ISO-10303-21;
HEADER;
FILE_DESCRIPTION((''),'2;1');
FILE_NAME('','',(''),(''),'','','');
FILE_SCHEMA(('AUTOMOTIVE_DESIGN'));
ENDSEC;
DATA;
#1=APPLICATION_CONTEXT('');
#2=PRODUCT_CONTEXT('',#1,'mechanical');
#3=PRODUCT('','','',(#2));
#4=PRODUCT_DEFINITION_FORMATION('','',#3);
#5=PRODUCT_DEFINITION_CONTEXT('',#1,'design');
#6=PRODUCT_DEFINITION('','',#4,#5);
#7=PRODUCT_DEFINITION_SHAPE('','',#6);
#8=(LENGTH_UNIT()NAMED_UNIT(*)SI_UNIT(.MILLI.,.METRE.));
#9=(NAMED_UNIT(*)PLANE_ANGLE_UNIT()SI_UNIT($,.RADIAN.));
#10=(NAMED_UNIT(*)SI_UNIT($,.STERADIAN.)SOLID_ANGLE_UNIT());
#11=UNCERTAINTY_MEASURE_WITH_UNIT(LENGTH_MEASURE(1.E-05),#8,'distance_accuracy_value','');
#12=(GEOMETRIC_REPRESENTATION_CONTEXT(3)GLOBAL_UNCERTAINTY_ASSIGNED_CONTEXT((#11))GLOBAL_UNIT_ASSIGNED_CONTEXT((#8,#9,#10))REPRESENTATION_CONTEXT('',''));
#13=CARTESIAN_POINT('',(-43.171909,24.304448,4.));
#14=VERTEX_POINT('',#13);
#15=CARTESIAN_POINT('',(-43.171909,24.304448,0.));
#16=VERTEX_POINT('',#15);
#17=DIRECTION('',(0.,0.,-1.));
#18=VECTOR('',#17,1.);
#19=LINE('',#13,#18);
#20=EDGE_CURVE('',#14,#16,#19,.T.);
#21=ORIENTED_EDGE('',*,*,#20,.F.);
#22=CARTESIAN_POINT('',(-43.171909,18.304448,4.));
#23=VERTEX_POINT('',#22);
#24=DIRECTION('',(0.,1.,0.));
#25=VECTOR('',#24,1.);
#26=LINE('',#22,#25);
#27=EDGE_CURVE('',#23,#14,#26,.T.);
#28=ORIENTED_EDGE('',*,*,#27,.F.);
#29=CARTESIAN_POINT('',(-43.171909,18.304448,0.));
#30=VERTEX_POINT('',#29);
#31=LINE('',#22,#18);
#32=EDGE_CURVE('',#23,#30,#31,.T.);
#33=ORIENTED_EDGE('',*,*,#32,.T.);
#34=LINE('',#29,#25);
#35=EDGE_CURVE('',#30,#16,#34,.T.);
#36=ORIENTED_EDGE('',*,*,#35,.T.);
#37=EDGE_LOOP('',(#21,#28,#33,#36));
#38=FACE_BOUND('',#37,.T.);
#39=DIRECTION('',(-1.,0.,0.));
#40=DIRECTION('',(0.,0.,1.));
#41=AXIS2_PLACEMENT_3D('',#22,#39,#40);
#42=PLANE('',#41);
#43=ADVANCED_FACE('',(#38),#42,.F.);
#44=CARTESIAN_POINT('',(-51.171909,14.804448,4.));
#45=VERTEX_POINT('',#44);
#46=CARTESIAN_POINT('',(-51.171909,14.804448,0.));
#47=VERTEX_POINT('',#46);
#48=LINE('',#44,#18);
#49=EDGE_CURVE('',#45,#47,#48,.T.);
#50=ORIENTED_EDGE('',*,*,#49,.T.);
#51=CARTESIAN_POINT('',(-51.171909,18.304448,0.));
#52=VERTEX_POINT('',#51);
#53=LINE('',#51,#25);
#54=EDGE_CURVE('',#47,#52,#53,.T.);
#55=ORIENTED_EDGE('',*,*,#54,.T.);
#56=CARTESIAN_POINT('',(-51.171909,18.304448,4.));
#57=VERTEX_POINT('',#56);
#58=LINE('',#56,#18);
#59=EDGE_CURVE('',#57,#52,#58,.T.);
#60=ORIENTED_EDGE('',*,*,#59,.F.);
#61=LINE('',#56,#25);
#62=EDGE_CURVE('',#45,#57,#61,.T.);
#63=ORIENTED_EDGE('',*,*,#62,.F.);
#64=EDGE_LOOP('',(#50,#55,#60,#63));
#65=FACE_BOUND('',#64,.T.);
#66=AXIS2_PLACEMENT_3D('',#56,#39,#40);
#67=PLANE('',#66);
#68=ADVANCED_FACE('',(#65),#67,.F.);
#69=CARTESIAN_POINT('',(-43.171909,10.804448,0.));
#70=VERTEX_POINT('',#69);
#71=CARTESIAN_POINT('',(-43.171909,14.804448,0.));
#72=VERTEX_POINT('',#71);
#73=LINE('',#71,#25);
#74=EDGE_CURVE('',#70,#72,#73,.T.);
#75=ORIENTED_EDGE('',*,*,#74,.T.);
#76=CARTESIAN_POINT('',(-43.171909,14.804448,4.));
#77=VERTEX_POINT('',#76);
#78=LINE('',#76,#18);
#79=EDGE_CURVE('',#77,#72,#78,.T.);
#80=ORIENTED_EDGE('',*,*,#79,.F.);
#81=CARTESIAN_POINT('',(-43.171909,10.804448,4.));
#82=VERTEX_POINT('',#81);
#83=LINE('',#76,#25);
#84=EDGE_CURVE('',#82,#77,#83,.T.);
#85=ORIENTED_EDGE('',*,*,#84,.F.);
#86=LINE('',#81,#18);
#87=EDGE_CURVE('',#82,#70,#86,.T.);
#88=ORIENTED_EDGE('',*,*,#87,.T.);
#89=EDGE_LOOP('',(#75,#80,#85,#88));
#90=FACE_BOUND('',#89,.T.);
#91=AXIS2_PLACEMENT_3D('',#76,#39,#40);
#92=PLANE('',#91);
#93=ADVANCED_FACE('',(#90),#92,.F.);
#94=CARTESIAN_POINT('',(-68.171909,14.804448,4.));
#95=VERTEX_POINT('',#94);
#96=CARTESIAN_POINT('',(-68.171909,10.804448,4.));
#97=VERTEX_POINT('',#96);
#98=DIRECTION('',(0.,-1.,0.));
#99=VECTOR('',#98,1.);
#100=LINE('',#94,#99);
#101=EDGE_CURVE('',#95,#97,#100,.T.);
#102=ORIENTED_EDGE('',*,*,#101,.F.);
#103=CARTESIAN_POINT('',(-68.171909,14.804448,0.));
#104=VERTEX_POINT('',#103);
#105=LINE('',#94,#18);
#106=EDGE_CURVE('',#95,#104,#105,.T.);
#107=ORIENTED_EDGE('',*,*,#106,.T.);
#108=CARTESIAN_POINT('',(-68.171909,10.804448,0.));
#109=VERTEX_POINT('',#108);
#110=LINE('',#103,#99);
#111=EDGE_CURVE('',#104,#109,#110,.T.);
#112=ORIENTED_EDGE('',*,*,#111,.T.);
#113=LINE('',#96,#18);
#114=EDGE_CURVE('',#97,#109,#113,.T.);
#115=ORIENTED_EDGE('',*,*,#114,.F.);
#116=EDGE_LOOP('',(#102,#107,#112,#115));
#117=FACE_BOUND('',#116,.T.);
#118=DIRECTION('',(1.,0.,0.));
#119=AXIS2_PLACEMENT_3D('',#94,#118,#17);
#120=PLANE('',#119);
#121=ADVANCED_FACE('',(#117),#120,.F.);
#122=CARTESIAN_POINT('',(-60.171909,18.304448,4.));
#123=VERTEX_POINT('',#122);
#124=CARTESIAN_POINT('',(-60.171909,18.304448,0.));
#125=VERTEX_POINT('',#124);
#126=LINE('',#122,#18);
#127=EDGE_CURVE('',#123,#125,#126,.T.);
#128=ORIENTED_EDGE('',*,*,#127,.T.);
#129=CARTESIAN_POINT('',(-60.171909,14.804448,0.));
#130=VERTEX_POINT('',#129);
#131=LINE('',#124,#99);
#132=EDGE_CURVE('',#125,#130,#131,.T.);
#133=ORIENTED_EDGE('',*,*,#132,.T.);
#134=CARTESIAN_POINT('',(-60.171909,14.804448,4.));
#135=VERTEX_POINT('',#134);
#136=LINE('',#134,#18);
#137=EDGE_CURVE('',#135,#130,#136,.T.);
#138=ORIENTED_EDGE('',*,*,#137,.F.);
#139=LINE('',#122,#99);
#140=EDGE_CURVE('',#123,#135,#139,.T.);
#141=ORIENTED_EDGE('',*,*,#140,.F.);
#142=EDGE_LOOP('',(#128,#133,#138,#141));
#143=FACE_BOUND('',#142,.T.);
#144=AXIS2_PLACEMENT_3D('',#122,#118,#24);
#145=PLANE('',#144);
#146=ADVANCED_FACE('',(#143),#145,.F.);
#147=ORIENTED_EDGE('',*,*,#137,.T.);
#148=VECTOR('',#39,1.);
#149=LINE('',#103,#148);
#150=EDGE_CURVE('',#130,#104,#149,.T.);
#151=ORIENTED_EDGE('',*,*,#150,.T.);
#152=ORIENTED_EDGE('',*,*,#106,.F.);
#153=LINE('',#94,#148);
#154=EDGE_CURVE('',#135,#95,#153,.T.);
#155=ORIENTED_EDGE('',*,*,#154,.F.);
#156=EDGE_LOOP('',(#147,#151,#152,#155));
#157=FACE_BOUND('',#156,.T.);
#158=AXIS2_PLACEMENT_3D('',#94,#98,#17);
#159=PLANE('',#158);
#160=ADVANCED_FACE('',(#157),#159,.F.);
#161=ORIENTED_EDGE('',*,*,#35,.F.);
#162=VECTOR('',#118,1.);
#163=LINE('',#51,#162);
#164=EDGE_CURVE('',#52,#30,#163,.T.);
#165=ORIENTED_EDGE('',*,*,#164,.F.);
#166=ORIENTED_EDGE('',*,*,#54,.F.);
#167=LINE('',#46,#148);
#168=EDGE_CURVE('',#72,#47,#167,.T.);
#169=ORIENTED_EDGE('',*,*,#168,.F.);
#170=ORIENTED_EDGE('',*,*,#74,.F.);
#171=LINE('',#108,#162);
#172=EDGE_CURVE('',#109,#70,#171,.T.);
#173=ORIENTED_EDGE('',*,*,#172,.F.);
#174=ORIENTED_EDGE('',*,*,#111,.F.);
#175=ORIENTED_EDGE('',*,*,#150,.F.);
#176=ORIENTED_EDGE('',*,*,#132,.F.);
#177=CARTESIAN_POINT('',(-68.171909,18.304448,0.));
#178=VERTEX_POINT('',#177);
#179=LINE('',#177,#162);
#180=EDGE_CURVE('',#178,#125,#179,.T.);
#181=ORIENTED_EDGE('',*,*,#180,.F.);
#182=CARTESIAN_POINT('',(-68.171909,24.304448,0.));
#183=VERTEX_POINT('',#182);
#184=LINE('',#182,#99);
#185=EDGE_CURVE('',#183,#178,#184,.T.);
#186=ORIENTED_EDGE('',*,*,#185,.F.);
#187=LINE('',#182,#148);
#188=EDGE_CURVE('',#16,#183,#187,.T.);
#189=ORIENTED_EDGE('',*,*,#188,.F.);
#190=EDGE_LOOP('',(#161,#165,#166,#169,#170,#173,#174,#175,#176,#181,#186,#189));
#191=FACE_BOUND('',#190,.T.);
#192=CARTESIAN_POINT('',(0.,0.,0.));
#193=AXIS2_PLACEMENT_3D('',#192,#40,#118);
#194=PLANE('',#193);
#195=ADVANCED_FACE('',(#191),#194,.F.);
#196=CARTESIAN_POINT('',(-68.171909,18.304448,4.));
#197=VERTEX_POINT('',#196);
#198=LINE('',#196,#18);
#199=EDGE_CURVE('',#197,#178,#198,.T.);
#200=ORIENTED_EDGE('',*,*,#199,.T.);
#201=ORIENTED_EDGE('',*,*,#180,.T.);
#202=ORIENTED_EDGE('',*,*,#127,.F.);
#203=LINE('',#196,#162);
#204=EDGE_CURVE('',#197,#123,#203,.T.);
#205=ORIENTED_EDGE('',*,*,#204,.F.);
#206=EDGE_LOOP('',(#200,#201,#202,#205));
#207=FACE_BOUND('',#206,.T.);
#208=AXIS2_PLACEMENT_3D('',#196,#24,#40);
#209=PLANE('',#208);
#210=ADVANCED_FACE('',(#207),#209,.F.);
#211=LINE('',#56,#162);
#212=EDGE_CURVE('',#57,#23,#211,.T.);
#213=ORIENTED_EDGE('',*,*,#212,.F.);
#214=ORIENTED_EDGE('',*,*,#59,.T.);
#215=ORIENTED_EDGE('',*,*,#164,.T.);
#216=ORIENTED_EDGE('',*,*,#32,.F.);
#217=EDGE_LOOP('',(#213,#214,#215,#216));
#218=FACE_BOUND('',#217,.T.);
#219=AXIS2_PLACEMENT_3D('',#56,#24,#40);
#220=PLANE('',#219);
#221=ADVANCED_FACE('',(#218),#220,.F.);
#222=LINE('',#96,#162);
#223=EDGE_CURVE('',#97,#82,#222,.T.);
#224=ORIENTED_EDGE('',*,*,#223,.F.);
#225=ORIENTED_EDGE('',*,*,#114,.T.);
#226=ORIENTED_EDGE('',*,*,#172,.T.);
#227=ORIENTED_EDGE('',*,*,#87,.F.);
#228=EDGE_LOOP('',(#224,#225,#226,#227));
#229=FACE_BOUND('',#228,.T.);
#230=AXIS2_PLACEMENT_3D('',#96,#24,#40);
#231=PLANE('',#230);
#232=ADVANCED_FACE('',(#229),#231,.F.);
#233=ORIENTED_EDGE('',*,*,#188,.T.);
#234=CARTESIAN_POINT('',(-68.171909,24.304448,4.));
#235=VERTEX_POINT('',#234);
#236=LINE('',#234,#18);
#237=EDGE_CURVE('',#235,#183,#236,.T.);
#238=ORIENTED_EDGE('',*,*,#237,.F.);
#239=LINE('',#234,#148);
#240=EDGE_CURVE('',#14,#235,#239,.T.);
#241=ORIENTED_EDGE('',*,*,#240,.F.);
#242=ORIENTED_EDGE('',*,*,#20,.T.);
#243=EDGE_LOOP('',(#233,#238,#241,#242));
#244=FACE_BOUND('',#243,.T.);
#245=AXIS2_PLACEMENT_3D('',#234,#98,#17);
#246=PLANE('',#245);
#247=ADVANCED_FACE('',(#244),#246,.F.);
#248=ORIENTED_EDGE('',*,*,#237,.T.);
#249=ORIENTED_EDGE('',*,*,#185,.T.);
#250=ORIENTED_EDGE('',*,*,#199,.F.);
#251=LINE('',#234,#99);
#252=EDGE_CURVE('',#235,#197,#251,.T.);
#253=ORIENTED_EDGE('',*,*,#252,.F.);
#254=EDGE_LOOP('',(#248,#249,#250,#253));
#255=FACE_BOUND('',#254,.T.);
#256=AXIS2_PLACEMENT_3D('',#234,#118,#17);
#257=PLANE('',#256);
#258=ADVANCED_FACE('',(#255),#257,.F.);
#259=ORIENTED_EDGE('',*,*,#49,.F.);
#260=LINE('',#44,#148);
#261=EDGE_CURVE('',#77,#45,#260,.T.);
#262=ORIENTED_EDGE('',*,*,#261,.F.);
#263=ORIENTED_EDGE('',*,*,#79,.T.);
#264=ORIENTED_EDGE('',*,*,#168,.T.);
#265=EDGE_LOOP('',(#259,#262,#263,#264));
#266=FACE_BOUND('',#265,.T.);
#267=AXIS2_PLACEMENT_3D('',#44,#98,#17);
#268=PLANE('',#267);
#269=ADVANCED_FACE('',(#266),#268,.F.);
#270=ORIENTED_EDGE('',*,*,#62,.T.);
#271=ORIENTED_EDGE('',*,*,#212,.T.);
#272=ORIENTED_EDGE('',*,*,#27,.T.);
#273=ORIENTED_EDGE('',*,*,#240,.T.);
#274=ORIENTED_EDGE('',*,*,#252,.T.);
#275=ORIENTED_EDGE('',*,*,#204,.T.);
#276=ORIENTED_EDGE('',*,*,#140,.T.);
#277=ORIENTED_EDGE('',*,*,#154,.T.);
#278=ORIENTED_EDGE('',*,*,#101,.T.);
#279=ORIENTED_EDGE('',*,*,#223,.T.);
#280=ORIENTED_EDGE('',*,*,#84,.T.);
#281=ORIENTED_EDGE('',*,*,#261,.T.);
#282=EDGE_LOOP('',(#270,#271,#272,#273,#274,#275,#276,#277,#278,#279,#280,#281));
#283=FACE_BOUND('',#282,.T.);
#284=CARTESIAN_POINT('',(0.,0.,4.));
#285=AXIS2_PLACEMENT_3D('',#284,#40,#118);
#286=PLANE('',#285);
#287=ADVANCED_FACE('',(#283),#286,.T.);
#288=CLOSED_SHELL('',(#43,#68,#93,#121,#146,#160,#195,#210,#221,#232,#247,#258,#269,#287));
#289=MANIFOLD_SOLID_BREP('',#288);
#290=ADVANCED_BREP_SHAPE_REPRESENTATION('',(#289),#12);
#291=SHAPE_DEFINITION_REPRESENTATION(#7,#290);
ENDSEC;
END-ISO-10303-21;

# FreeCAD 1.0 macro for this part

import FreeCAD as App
import Part
import Sketcher

V = App.Vector

doc = App.newDocument("Part")
body = doc.addObject("PartDesign::Body", "Body")

sketch1 = body.newObject("Sketcher::SketchObject", "Sketch")
sketch1.AttachmentSupport = (doc.getObject("XY_Plane"), [""])
sketch1.MapMode = "FlatFace"
sketch1.addGeometry(Part.LineSegment(V(-43.171909, 24.304448, 0), V(-68.171909, 24.304448, 0)), False)
sketch1.addGeometry(Part.LineSegment(V(-68.171909, 24.304448, 0), V(-68.171909, 18.304448, 0)), False)
sketch1.addGeometry(Part.LineSegment(V(-68.171909, 18.304448, 0), V(-60.171909, 18.304448, 0)), False)
sketch1.addGeometry(Part.LineSegment(V(-60.171909, 18.304448, 0), V(-60.171909, 14.804448, 0)), False)
sketch1.addGeometry(Part.LineSegment(V(-60.171909, 14.804448, 0), V(-68.171909, 14.804448, 0)), False)
sketch1.addGeometry(Part.LineSegment(V(-68.171909, 14.804448, 0), V(-68.171909, 10.804448, 0)), False)
sketch1.addGeometry(Part.LineSegment(V(-68.171909, 10.804448, 0), V(-43.171909, 10.804448, 0)), False)
sketch1.addGeometry(Part.LineSegment(V(-43.171909, 10.804448, 0), V(-43.171909, 14.804448, 0)), False)
sketch1.addGeometry(Part.LineSegment(V(-43.171909, 14.804448, 0), V(-51.171909, 14.804448, 0)), False)
sketch1.addGeometry(Part.LineSegment(V(-51.171909, 14.804448, 0), V(-51.171909, 18.304448, 0)), False)
sketch1.addGeometry(Part.LineSegment(V(-51.171909, 18.304448, 0), V(-43.171909, 18.304448, 0)), False)
sketch1.addGeometry(Part.LineSegment(V(-43.171909, 18.304448, 0), V(-43.171909, 24.304448, 0)), False)
sketch1.addConstraint(Sketcher.Constraint("Coincident", 0, 2, 1, 1))
sketch1.addConstraint(Sketcher.Constraint("Coincident", 1, 2, 2, 1))
sketch1.addConstraint(Sketcher.Constraint("Coincident", 2, 2, 3, 1))
sketch1.addConstraint(Sketcher.Constraint("Coincident", 3, 2, 4, 1))
sketch1.addConstraint(Sketcher.Constraint("Coincident", 4, 2, 5, 1))
sketch1.addConstraint(Sketcher.Constraint("Coincident", 5, 2, 6, 1))
sketch1.addConstraint(Sketcher.Constraint("Coincident", 6, 2, 7, 1))
sketch1.addConstraint(Sketcher.Constraint("Coincident", 7, 2, 8, 1))
sketch1.addConstraint(Sketcher.Constraint("Coincident", 8, 2, 9, 1))
sketch1.addConstraint(Sketcher.Constraint("Coincident", 9, 2, 10, 1))
sketch1.addConstraint(Sketcher.Constraint("Coincident", 10, 2, 11, 1))
sketch1.addConstraint(Sketcher.Constraint("Coincident", 11, 2, 0, 1))
sketch1.addConstraint(Sketcher.Constraint("Horizontal", 0))
sketch1.addConstraint(Sketcher.Constraint("Vertical", 1))
sketch1.addConstraint(Sketcher.Constraint("Horizontal", 2))
sketch1.addConstraint(Sketcher.Constraint("Vertical", 3))
sketch1.addConstraint(Sketcher.Constraint("Horizontal", 4))
sketch1.addConstraint(Sketcher.Constraint("Vertical", 5))
sketch1.addConstraint(Sketcher.Constraint("Horizontal", 6))
sketch1.addConstraint(Sketcher.Constraint("Vertical", 7))
sketch1.addConstraint(Sketcher.Constraint("Horizontal", 8))
sketch1.addConstraint(Sketcher.Constraint("Vertical", 9))
sketch1.addConstraint(Sketcher.Constraint("Horizontal", 10))
sketch1.addConstraint(Sketcher.Constraint("Vertical", 11))
sketch1.addConstraint(Sketcher.Constraint("Horizontal", 4, 2, 7, 2))
sketch1.addConstraint(Sketcher.Constraint("Horizontal", 2, 2, 9, 2))
sketch1.addConstraint(Sketcher.Constraint("Vertical", 1, 2, 4, 2))
sketch1.addConstraint(Sketcher.Constraint("Vertical", 7, 2, 10, 2))
sketch1.addConstraint(Sketcher.Constraint("Equal", 4, 8))
sketch1.addConstraint(Sketcher.Constraint("DistanceX", 0, 2, 0, 1, 25.0))
sketch1.addConstraint(Sketcher.Constraint("DistanceX", 2, 1, 2, 2, 8.0))
sketch1.addConstraint(Sketcher.Constraint("DistanceY", 1, 2, 1, 1, 6.0))
sketch1.addConstraint(Sketcher.Constraint("DistanceY", 5, 2, 5, 1, 4.0))
sketch1.addConstraint(Sketcher.Constraint("DistanceY", 3, 2, 3, 1, 3.5))
sketch1.addConstraint(Sketcher.Constraint("DistanceX", 0, 2, -1, 1, 68.171909))
sketch1.addConstraint(Sketcher.Constraint("DistanceY", -1, 1, 0, 2, 24.304448))
pad1 = body.newObject("PartDesign::Pad", "Pad")
pad1.Profile = sketch1
pad1.Length = 4

doc.recompute()
